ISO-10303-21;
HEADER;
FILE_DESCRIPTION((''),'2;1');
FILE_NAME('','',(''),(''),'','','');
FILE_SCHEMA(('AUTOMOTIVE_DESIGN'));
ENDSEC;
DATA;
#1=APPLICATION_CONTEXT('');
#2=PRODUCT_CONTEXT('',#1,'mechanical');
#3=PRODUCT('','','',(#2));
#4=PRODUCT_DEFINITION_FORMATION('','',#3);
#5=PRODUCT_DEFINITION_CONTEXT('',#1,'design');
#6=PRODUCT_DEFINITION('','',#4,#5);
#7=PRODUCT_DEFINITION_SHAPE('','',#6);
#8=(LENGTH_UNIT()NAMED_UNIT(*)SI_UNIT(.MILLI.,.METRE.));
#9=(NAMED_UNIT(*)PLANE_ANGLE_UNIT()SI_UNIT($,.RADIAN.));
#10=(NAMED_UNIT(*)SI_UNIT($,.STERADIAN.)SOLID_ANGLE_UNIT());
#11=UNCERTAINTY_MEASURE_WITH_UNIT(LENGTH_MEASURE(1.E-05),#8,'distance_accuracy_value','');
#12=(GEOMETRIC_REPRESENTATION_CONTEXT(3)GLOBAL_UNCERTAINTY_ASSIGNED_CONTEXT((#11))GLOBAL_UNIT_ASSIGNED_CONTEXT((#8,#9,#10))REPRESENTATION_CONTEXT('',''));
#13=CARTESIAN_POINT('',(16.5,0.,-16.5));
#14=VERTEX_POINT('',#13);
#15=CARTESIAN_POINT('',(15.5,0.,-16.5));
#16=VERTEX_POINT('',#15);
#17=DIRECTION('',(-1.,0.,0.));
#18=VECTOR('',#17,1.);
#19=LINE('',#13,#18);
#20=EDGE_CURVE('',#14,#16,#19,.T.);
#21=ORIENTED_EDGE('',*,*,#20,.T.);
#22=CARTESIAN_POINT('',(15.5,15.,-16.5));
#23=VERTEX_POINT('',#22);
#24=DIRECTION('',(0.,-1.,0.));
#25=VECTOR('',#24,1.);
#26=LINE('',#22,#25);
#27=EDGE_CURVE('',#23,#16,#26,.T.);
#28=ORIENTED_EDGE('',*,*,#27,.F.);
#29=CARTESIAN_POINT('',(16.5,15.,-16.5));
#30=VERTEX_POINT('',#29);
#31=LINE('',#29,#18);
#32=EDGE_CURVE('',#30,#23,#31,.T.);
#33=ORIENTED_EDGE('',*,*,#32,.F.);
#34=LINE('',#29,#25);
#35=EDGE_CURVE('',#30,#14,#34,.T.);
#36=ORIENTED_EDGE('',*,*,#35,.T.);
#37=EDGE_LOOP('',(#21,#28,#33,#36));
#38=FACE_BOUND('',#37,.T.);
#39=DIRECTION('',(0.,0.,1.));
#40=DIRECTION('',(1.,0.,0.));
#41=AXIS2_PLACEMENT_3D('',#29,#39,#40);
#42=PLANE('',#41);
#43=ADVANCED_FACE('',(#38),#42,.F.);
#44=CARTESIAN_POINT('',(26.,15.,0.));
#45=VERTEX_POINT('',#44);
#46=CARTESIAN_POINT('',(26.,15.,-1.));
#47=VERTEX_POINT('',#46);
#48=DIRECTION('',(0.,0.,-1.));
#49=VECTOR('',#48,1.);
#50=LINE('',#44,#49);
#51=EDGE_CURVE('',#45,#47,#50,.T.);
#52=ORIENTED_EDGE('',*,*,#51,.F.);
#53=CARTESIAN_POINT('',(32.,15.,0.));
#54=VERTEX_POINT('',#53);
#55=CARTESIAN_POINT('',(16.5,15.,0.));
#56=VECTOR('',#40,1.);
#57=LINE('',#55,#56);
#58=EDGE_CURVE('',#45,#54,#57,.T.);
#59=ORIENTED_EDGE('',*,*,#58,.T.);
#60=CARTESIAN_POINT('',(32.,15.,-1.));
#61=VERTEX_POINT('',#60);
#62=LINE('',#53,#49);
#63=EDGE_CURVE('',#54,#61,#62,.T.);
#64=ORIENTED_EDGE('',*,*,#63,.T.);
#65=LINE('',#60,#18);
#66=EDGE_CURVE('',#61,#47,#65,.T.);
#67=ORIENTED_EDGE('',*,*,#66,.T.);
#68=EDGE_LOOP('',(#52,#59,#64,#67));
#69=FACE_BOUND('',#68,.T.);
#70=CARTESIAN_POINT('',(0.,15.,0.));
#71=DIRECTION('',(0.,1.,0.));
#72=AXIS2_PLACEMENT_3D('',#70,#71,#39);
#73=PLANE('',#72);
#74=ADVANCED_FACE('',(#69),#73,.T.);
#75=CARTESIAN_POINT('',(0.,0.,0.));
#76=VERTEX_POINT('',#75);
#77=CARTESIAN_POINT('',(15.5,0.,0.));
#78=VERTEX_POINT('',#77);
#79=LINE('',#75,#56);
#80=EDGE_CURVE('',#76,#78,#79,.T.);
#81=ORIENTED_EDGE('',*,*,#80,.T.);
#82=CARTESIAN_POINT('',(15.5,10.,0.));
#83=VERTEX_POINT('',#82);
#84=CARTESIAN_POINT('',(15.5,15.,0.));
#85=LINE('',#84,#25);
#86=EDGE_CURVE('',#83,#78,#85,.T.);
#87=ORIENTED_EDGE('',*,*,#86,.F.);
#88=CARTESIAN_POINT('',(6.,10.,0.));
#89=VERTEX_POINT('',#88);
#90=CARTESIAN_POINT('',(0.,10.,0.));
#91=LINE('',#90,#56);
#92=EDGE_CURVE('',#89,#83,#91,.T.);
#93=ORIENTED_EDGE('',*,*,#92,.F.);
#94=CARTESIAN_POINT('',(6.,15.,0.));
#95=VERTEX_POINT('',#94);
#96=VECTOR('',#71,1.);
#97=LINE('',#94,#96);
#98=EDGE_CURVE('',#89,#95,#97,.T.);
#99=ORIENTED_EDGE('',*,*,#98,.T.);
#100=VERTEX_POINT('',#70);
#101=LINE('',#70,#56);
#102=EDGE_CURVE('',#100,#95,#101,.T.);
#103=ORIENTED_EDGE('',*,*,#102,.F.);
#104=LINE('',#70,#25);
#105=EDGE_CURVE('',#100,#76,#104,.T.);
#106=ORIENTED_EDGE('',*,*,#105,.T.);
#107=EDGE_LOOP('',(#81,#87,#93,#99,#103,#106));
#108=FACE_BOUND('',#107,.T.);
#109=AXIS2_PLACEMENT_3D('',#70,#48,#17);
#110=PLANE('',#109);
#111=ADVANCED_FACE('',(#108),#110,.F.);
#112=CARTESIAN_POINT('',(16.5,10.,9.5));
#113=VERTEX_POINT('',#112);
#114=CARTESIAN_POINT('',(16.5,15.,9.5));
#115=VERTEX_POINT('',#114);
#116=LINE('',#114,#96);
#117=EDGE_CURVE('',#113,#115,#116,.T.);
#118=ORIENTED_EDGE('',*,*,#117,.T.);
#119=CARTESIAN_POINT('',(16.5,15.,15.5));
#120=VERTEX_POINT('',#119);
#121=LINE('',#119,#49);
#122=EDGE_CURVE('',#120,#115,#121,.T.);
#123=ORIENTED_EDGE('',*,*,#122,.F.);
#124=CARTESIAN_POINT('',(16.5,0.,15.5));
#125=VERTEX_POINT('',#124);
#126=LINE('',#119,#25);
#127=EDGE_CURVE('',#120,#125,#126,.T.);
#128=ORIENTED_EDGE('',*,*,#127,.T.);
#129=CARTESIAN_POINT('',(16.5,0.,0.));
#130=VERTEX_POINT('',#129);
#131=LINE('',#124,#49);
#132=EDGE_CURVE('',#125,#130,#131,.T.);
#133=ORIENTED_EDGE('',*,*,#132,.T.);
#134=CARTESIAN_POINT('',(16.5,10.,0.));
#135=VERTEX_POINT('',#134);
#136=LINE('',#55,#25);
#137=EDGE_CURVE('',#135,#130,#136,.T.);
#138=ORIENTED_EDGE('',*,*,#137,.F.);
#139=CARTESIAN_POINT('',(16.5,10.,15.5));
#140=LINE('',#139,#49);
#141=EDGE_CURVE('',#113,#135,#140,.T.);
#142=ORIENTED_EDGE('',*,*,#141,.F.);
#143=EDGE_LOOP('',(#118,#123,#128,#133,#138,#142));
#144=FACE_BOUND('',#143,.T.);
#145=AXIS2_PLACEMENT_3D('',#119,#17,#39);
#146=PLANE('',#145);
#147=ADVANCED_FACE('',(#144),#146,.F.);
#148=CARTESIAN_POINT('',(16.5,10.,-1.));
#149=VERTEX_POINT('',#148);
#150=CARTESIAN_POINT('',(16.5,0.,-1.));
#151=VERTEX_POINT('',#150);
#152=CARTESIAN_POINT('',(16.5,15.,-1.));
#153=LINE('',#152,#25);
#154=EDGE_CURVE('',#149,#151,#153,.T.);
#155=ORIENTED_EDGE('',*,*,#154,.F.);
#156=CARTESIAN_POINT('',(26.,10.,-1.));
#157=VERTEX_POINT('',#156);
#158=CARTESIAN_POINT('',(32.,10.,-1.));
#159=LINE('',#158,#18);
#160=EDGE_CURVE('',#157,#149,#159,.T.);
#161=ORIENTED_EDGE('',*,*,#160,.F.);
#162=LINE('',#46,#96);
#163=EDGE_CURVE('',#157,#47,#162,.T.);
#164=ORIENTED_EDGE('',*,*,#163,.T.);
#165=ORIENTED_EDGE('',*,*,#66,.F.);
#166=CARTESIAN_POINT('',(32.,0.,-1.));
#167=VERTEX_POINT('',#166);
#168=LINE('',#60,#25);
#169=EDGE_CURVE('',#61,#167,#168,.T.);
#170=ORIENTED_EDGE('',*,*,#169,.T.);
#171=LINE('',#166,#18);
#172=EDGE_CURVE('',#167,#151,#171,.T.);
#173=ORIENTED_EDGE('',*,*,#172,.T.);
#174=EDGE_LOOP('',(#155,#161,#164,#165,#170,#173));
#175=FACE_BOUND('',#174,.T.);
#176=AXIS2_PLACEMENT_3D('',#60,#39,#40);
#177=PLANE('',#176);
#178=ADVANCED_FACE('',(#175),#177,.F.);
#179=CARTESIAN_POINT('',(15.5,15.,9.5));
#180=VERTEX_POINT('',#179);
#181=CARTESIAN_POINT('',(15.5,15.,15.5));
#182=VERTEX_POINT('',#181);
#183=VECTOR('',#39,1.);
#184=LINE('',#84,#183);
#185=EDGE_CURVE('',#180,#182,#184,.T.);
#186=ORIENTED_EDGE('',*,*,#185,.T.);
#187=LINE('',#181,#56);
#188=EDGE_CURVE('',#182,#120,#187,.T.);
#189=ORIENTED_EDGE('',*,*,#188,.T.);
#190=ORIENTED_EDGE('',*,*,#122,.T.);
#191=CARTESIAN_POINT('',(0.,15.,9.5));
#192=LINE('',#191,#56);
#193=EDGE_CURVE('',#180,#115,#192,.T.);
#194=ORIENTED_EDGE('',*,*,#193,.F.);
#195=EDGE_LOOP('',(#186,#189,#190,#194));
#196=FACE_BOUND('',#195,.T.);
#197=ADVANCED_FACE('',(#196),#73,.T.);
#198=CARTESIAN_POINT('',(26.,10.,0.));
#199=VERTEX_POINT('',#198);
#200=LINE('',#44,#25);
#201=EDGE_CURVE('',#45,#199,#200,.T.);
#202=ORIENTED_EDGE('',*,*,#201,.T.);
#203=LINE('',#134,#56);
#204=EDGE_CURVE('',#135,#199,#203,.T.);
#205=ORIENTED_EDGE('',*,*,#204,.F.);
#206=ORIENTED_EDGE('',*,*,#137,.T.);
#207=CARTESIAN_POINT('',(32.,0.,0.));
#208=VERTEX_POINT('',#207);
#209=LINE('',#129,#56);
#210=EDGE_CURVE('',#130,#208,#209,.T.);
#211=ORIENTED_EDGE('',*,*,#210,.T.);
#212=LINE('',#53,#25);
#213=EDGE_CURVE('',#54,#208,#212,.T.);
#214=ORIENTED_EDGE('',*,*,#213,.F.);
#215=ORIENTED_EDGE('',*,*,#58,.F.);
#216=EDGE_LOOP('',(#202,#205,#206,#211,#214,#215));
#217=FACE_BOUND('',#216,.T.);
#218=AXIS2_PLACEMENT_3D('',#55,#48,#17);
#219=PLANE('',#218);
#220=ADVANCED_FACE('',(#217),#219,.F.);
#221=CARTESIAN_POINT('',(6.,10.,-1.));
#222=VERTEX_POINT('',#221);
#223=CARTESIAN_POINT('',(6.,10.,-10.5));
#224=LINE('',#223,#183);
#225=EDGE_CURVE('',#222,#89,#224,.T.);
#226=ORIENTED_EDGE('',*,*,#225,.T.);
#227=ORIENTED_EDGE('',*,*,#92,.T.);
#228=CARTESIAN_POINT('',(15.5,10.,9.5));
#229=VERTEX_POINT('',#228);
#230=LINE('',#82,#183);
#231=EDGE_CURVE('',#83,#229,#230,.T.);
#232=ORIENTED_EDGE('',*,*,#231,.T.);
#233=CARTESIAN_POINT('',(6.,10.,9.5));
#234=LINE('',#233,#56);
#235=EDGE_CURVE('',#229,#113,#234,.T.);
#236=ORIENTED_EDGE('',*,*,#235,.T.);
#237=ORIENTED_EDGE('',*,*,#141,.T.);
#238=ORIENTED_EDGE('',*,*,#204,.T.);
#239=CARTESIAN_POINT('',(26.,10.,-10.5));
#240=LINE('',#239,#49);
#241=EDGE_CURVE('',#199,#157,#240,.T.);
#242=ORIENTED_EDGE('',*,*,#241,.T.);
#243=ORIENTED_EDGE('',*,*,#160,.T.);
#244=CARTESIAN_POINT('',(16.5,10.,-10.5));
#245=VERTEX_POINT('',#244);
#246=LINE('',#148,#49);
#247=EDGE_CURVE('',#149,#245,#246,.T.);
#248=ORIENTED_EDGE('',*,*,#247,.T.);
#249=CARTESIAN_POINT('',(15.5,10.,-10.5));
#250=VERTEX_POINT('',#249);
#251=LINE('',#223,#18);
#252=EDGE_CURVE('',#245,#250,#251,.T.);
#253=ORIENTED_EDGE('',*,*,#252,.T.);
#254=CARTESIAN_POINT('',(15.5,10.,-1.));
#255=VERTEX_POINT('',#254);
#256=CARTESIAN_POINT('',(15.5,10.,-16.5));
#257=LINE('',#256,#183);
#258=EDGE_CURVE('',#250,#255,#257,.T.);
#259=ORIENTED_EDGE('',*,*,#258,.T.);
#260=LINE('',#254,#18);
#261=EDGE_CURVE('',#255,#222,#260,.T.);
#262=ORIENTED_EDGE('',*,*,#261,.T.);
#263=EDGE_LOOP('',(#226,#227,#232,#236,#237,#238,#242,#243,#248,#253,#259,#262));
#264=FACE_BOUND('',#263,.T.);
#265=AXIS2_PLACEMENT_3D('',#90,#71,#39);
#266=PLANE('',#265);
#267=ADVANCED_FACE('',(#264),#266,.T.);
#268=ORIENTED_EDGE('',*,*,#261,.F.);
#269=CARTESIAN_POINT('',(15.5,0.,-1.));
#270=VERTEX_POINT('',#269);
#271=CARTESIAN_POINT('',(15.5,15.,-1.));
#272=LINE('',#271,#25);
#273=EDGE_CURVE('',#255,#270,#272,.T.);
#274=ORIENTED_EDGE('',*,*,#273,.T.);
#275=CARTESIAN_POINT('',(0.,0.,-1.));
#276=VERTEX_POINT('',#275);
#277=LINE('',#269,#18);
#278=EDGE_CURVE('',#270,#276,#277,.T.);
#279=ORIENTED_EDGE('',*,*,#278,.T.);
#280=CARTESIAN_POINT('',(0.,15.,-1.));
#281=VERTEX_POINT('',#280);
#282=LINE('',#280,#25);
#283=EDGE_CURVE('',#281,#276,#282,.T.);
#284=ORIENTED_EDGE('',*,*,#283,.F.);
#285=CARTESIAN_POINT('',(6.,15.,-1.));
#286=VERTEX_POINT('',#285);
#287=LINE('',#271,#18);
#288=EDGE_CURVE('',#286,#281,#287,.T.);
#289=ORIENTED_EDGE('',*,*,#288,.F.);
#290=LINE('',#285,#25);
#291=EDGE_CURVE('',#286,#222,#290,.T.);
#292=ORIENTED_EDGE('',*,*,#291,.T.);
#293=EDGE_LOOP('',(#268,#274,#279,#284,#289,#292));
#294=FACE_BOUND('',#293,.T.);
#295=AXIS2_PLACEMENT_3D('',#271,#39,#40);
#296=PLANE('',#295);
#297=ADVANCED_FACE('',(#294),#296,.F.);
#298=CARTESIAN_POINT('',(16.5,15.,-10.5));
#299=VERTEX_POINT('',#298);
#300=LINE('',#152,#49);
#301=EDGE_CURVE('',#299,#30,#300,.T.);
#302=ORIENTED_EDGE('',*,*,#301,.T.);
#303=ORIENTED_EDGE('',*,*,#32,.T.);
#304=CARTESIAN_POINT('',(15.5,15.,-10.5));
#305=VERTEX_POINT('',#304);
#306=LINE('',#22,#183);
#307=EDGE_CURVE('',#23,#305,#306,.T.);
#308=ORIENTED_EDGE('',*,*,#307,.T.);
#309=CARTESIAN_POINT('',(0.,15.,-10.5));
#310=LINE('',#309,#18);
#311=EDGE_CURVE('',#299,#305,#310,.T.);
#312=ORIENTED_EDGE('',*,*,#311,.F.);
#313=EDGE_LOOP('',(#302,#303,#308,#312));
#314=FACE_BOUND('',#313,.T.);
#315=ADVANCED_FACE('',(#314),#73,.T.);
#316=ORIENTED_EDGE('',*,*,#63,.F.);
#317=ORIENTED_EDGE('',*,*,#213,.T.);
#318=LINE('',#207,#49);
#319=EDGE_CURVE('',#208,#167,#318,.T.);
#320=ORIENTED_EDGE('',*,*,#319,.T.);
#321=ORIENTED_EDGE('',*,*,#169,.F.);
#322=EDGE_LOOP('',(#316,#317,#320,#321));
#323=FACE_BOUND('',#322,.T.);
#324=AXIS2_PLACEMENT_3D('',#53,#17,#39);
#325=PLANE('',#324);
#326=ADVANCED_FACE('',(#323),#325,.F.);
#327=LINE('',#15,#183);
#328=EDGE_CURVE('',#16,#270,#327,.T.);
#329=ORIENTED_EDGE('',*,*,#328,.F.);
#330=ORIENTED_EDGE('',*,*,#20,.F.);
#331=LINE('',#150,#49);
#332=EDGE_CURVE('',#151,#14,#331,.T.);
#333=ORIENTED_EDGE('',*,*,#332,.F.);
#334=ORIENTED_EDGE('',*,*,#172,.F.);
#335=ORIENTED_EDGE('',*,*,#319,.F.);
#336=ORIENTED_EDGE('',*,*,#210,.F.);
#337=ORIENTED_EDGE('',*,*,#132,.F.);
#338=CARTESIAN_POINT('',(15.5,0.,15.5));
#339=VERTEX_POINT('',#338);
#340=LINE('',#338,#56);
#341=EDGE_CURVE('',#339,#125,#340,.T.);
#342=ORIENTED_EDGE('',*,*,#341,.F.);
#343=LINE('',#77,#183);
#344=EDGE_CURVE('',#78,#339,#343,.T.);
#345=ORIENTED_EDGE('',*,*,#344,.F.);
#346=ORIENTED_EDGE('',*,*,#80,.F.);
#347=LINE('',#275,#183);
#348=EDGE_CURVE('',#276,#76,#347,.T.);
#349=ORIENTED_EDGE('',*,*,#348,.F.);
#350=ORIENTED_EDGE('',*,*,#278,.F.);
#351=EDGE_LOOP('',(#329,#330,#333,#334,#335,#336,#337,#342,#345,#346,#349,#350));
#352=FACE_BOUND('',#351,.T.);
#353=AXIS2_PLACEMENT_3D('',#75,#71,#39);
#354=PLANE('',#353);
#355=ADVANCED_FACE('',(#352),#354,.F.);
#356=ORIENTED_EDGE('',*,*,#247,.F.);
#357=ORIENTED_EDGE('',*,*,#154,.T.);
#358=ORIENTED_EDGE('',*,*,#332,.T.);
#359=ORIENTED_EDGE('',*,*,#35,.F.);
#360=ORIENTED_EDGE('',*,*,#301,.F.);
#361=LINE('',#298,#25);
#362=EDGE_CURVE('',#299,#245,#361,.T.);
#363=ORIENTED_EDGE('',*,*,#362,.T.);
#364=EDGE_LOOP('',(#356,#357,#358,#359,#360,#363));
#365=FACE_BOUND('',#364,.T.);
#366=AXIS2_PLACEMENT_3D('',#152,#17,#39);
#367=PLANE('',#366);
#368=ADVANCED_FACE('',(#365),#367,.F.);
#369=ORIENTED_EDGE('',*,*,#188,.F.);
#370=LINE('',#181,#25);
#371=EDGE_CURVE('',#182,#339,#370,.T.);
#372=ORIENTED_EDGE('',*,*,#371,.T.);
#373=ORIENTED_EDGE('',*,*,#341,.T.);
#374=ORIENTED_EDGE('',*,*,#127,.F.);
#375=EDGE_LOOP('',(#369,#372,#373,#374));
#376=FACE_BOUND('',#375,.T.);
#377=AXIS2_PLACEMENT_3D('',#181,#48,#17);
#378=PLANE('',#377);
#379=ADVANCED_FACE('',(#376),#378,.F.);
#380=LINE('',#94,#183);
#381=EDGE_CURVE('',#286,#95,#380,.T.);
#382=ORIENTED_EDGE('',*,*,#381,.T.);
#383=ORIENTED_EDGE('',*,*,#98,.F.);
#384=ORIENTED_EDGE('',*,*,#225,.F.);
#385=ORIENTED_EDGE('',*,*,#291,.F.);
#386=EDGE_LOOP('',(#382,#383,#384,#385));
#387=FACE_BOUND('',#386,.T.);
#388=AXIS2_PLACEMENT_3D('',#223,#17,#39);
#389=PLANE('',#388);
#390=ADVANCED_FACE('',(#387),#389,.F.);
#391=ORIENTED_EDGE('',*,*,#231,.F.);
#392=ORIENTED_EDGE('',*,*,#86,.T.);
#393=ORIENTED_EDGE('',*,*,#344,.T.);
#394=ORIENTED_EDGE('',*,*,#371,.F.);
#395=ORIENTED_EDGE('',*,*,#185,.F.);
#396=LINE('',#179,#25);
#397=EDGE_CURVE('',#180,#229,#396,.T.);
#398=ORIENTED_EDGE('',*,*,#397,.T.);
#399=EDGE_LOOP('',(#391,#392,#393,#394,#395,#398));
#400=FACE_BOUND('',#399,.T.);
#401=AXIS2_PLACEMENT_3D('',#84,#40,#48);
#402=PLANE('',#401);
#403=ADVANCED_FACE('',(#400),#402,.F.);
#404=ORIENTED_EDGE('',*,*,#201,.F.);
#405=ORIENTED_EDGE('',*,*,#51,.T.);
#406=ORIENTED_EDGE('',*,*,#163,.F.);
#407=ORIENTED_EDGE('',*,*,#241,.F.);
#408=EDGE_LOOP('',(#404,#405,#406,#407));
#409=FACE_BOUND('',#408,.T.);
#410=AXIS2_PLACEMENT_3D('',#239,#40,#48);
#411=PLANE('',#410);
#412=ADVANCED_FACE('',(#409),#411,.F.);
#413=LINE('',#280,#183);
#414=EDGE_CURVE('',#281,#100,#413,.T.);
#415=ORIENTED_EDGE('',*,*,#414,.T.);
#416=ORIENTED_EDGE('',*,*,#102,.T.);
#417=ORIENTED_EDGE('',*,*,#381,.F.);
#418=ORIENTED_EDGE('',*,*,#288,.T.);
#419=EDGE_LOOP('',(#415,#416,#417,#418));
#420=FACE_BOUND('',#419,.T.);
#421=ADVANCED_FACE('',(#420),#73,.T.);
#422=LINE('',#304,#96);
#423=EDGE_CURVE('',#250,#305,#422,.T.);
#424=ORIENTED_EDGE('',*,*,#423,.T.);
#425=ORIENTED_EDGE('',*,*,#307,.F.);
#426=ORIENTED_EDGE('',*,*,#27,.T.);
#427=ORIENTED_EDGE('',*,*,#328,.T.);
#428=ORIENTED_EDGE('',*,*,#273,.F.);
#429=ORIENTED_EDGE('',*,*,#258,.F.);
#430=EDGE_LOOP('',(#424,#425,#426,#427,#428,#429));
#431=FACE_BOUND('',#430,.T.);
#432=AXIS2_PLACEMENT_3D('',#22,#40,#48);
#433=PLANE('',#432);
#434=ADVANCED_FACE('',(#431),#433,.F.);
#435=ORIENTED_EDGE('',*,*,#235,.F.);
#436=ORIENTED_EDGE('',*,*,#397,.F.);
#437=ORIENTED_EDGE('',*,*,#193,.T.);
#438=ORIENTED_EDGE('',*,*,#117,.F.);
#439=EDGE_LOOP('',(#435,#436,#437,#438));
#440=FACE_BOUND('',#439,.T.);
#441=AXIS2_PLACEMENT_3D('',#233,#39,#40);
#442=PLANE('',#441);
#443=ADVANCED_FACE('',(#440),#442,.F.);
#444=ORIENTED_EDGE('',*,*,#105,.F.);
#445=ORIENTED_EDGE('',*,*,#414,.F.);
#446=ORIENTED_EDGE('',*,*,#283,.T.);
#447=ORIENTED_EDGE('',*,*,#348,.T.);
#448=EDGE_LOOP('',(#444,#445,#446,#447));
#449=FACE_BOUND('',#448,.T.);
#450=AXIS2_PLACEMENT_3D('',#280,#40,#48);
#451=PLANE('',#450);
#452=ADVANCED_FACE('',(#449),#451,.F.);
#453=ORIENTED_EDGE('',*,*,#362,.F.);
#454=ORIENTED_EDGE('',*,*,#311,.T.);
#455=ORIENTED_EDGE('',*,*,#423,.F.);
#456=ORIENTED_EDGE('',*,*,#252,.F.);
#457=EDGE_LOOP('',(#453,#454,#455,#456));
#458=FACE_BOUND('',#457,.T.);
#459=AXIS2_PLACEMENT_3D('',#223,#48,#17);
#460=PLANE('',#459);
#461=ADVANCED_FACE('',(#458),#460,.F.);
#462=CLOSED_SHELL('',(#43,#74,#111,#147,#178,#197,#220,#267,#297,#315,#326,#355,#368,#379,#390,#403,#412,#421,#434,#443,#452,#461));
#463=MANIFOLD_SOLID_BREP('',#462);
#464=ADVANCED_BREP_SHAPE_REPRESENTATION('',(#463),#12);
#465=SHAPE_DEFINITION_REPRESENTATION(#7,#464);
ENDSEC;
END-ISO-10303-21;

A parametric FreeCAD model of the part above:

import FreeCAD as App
import Part
import Sketcher

doc = App.newDocument("Part")
body = doc.addObject("PartDesign::Body", "Body")

sketch1 = body.newObject("Sketcher::SketchObject", "Sketch")
sketch1.AttachmentSupport = (doc.getObject("XZ_Plane"), [""])
sketch1.MapMode = "FlatFace"
sketch1.addGeometry([
    Part.LineSegment(App.Vector(0, 0, 0), App.Vector(15.5, 0, 0)),
    Part.LineSegment(App.Vector(15.5, 0, 0), App.Vector(15.5, 15.5, 0)),
    Part.LineSegment(App.Vector(15.5, 15.5, 0), App.Vector(16.5, 15.5, 0)),
    Part.LineSegment(App.Vector(16.5, 15.5, 0), App.Vector(16.5, 0, 0)),
    Part.LineSegment(App.Vector(16.5, 0, 0), App.Vector(32, 0, 0)),
    Part.LineSegment(App.Vector(32, 0, 0), App.Vector(32, -1, 0)),
    Part.LineSegment(App.Vector(32, -1, 0), App.Vector(16.5, -1, 0)),
    Part.LineSegment(App.Vector(16.5, -1, 0), App.Vector(16.5, -16.5, 0)),
    Part.LineSegment(App.Vector(16.5, -16.5, 0), App.Vector(15.5, -16.5, 0)),
    Part.LineSegment(App.Vector(15.5, -16.5, 0), App.Vector(15.5, -1, 0)),
    Part.LineSegment(App.Vector(15.5, -1, 0), App.Vector(0, -1, 0)),
    Part.LineSegment(App.Vector(0, -1, 0), App.Vector(0, 0, 0)),
], False)
sketch1.addConstraint([
    Sketcher.Constraint("Coincident", 0, 2, 1, 1),
    Sketcher.Constraint("Coincident", 1, 2, 2, 1),
    Sketcher.Constraint("Coincident", 2, 2, 3, 1),
    Sketcher.Constraint("Coincident", 3, 2, 4, 1),
    Sketcher.Constraint("Coincident", 4, 2, 5, 1),
    Sketcher.Constraint("Coincident", 5, 2, 6, 1),
    Sketcher.Constraint("Coincident", 6, 2, 7, 1),
    Sketcher.Constraint("Coincident", 7, 2, 8, 1),
    Sketcher.Constraint("Coincident", 8, 2, 9, 1),
    Sketcher.Constraint("Coincident", 9, 2, 10, 1),
    Sketcher.Constraint("Coincident", 10, 2, 11, 1),
    Sketcher.Constraint("Coincident", 11, 2, 0, 1),
    Sketcher.Constraint("Horizontal", 0),
    Sketcher.Constraint("Vertical", 1),
    Sketcher.Constraint("Horizontal", 2),
    Sketcher.Constraint("Vertical", 3),
    Sketcher.Constraint("Horizontal", 4),
    Sketcher.Constraint("Vertical", 5),
    Sketcher.Constraint("Horizontal", 6),
    Sketcher.Constraint("Vertical", 7),
    Sketcher.Constraint("Horizontal", 8),
    Sketcher.Constraint("Vertical", 9),
    Sketcher.Constraint("Horizontal", 10),
    Sketcher.Constraint("Vertical", 11),
    Sketcher.Constraint("Coincident", 11, 2, -1, 1),
    Sketcher.Constraint("PointOnObject", 3, 2, -1),
    Sketcher.Constraint("Horizontal", 6, 2, 9, 2),
    Sketcher.Constraint("Vertical", 3, 2, 6, 2),
    Sketcher.Constraint("Vertical", 1, 2, 8, 2),
    Sketcher.Constraint("Equal", 0, 4),
    Sketcher.Constraint("Equal", 10, 1),
    Sketcher.Constraint("Equal", 8, 5),
    Sketcher.Constraint("Equal", 3, 7),
    Sketcher.Constraint("DistanceX", 2, 1, 2, 2, 1.0),
    Sketcher.Constraint("DistanceX", 0, 1, 0, 2, 15.5),
])
pad1 = body.newObject("PartDesign::Pad", "Pad")
pad1.Profile = sketch1
pad1.Length = 15
pad1.Reversed = True

sketch2 = body.newObject("Sketcher::SketchObject", "Sketch001")
sketch2.AttachmentSupport = (doc.getObject("XZ_Plane"), [""])
sketch2.MapMode = "FlatFace"
sketch2.AttachmentOffset = App.Placement(App.Vector(0, 0, -15), App.Rotation())
sketch2.addGeometry([
    Part.LineSegment(App.Vector(6, -10, 0), App.Vector(6, 10, 0)),
    Part.LineSegment(App.Vector(6, 10, 0), App.Vector(26, 10, 0)),
    Part.LineSegment(App.Vector(26, 10, 0), App.Vector(26, -10, 0)),
    Part.LineSegment(App.Vector(26, -10, 0), App.Vector(6, -10, 0)),
], False)
sketch2.addConstraint([
    Sketcher.Constraint("Coincident", 0, 2, 1, 1),
    Sketcher.Constraint("Coincident", 1, 2, 2, 1),
    Sketcher.Constraint("Coincident", 2, 2, 3, 1),
    Sketcher.Constraint("Coincident", 3, 2, 0, 1),
    Sketcher.Constraint("Vertical", 0),
    Sketcher.Constraint("Horizontal", 1),
    Sketcher.Constraint("Vertical", 2),
    Sketcher.Constraint("Horizontal", 3),
    Sketcher.Constraint("Equal", 3, 0),
    Sketcher.Constraint("DistanceX", 1, 1, 1, 2, 20.0),
    Sketcher.Constraint("DistanceX", -1, 1, 0, 2, 6.0),
    Sketcher.Constraint("DistanceY", -1, 1, 0, 2, 9.5),
])
pocket1 = body.newObject("PartDesign::Pocket", "Pocket")
pocket1.Profile = sketch2
pocket1.Length = 5
pocket1.Reversed = True

doc.recompute()
